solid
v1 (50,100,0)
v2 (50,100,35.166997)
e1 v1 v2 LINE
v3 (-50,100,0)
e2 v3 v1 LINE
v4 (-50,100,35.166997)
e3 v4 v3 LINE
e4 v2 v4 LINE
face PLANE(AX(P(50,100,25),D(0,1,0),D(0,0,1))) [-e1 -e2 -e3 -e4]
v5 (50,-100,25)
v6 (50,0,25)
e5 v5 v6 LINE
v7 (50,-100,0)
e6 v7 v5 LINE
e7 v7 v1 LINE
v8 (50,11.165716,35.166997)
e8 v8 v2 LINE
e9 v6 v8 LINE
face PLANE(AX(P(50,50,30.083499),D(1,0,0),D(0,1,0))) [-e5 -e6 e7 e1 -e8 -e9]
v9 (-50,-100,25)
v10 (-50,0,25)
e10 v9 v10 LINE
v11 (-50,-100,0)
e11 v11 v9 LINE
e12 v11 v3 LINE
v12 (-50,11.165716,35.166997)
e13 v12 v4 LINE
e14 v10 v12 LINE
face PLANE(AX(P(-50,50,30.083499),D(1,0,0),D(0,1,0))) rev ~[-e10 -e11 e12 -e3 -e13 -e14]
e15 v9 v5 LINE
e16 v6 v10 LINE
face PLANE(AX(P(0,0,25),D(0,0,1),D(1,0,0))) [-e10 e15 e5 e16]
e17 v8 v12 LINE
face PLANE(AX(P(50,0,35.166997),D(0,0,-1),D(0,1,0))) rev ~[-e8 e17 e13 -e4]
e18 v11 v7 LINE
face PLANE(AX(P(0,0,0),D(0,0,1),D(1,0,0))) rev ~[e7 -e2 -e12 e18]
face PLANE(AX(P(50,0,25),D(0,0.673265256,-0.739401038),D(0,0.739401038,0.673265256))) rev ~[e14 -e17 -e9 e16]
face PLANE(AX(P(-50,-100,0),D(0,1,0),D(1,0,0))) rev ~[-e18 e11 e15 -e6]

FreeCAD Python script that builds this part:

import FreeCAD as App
import Part
import Sketcher
from FreeCAD import Vector

doc = App.newDocument("Part")
body = doc.addObject("PartDesign::Body", "Body")

sketch1 = body.newObject("Sketcher::SketchObject", "Sketch")
sketch1.AttachmentSupport = (doc.getObject("XY_Plane"), [""])
sketch1.MapMode = "FlatFace"
sketch1.addGeometry([
    Part.LineSegment(Vector(-50, 100, 0), Vector(-50, -100, 0)),
    Part.LineSegment(Vector(-50, -100, 0), Vector(50, -100, 0)),
    Part.LineSegment(Vector(50, -100, 0), Vector(50, 100, 0)),
    Part.LineSegment(Vector(50, 100, 0), Vector(-50, 100, 0)),
], False)
sketch1.addConstraint([
    Sketcher.Constraint("Coincident", 0, 2, 1, 1),
    Sketcher.Constraint("Coincident", 1, 2, 2, 1),
    Sketcher.Constraint("Coincident", 2, 2, 3, 1),
    Sketcher.Constraint("Coincident", 3, 2, 0, 1),
    Sketcher.Constraint("Vertical", 0),
    Sketcher.Constraint("Horizontal", 1),
    Sketcher.Constraint("Vertical", 2),
    Sketcher.Constraint("Horizontal", 3),
    Sketcher.Constraint("Symmetric", 0, 2, 2, 2, -1, 1),
    Sketcher.Constraint("DistanceX", 1, 1, 1, 2, 100.0),
    Sketcher.Constraint("DistanceY", 0, 2, 0, 1, 200.0),
])
pad1 = body.newObject("PartDesign::Pad", "Pad")
pad1.Profile = sketch1
pad1.Length = 25

sketch2 = body.newObject("Sketcher::SketchObject", "Sketch001")
sketch2.AttachmentSupport = (doc.getObject("YZ_Plane"), [""])
sketch2.MapMode = "FlatFace"
sketch2.AttachmentOffset = App.Placement(Vector(0, 0, 50), App.Rotation())
sketch2.addGeometry([
    Part.LineSegment(Vector(0, 35, 0), Vector(0, 25, 0)),
    Part.LineSegment(Vector(0, 25, 0), Vector(100, 25, 0)),
    Part.LineSegment(Vector(100, 25, 0), Vector(100, 35, 0)),
    Part.LineSegment(Vector(100, 35, 0), Vector(0, 35, 0)),
], False)
sketch2.addConstraint([
    Sketcher.Constraint("Coincident", 0, 2, 1, 1),
    Sketcher.Constraint("Coincident", 1, 2, 2, 1),
    Sketcher.Constraint("Coincident", 2, 2, 3, 1),
    Sketcher.Constraint("Coincident", 3, 2, 0, 1),
    Sketcher.Constraint("Vertical", 0),
    Sketcher.Constraint("Horizontal", 1),
    Sketcher.Constraint("Vertical", 2),
    Sketcher.Constraint("Horizontal", 3),
    Sketcher.Constraint("PointOnObject", 0, 2, -2),
    Sketcher.Constraint("DistanceX", 1, 1, 1, 2, 100.0),
    Sketcher.Constraint("DistanceY", -1, 1, 0, 2, 25.0),
    Sketcher.Constraint("DistanceY", 0, 2, 0, 1, 10.166997),
])
pad2 = body.newObject("PartDesign::Pad", "Pad001")
pad2.Profile = sketch2
pad2.Length = 100
pad2.Reversed = True

sketch3 = body.newObject("Sketcher::SketchObject", "Sketch002")
sketch3.AttachmentSupport = (doc.getObject("YZ_Plane"), [""])
sketch3.MapMode = "FlatFace"
sketch3.AttachmentOffset = App.Placement(Vector(0, 0, 50), App.Rotation())
sketch3.addGeometry([
    Part.LineSegment(Vector(0, 35, 0), Vector(0, 25, 0)),
    Part.LineSegment(Vector(0, 25, 0), Vector(11, 35, 0)),
    Part.LineSegment(Vector(11, 35, 0), Vector(0, 35, 0)),
], False)
sketch3.addConstraint([
    Sketcher.Constraint("Coincident", 0, 2, 1, 1),
    Sketcher.Constraint("Coincident", 1, 2, 2, 1),
    Sketcher.Constraint("Coincident", 2, 2, 0, 1),
    Sketcher.Constraint("Vertical", 0),
    Sketcher.Constraint("Horizontal", 2),
    Sketcher.Constraint("PointOnObject", 0, 2, -2),
    Sketcher.Constraint("DistanceY", -1, 1, 0, 2, 25.0),
    Sketcher.Constraint("DistanceX", 2, 2, 2, 1, 11.165716),
    Sketcher.Constraint("DistanceY", 0, 2, 0, 1, 10.166997),
])
pocket1 = body.newObject("PartDesign::Pocket", "Pocket")
pocket1.Profile = sketch3
pocket1.Length = 200

doc.recompute()
